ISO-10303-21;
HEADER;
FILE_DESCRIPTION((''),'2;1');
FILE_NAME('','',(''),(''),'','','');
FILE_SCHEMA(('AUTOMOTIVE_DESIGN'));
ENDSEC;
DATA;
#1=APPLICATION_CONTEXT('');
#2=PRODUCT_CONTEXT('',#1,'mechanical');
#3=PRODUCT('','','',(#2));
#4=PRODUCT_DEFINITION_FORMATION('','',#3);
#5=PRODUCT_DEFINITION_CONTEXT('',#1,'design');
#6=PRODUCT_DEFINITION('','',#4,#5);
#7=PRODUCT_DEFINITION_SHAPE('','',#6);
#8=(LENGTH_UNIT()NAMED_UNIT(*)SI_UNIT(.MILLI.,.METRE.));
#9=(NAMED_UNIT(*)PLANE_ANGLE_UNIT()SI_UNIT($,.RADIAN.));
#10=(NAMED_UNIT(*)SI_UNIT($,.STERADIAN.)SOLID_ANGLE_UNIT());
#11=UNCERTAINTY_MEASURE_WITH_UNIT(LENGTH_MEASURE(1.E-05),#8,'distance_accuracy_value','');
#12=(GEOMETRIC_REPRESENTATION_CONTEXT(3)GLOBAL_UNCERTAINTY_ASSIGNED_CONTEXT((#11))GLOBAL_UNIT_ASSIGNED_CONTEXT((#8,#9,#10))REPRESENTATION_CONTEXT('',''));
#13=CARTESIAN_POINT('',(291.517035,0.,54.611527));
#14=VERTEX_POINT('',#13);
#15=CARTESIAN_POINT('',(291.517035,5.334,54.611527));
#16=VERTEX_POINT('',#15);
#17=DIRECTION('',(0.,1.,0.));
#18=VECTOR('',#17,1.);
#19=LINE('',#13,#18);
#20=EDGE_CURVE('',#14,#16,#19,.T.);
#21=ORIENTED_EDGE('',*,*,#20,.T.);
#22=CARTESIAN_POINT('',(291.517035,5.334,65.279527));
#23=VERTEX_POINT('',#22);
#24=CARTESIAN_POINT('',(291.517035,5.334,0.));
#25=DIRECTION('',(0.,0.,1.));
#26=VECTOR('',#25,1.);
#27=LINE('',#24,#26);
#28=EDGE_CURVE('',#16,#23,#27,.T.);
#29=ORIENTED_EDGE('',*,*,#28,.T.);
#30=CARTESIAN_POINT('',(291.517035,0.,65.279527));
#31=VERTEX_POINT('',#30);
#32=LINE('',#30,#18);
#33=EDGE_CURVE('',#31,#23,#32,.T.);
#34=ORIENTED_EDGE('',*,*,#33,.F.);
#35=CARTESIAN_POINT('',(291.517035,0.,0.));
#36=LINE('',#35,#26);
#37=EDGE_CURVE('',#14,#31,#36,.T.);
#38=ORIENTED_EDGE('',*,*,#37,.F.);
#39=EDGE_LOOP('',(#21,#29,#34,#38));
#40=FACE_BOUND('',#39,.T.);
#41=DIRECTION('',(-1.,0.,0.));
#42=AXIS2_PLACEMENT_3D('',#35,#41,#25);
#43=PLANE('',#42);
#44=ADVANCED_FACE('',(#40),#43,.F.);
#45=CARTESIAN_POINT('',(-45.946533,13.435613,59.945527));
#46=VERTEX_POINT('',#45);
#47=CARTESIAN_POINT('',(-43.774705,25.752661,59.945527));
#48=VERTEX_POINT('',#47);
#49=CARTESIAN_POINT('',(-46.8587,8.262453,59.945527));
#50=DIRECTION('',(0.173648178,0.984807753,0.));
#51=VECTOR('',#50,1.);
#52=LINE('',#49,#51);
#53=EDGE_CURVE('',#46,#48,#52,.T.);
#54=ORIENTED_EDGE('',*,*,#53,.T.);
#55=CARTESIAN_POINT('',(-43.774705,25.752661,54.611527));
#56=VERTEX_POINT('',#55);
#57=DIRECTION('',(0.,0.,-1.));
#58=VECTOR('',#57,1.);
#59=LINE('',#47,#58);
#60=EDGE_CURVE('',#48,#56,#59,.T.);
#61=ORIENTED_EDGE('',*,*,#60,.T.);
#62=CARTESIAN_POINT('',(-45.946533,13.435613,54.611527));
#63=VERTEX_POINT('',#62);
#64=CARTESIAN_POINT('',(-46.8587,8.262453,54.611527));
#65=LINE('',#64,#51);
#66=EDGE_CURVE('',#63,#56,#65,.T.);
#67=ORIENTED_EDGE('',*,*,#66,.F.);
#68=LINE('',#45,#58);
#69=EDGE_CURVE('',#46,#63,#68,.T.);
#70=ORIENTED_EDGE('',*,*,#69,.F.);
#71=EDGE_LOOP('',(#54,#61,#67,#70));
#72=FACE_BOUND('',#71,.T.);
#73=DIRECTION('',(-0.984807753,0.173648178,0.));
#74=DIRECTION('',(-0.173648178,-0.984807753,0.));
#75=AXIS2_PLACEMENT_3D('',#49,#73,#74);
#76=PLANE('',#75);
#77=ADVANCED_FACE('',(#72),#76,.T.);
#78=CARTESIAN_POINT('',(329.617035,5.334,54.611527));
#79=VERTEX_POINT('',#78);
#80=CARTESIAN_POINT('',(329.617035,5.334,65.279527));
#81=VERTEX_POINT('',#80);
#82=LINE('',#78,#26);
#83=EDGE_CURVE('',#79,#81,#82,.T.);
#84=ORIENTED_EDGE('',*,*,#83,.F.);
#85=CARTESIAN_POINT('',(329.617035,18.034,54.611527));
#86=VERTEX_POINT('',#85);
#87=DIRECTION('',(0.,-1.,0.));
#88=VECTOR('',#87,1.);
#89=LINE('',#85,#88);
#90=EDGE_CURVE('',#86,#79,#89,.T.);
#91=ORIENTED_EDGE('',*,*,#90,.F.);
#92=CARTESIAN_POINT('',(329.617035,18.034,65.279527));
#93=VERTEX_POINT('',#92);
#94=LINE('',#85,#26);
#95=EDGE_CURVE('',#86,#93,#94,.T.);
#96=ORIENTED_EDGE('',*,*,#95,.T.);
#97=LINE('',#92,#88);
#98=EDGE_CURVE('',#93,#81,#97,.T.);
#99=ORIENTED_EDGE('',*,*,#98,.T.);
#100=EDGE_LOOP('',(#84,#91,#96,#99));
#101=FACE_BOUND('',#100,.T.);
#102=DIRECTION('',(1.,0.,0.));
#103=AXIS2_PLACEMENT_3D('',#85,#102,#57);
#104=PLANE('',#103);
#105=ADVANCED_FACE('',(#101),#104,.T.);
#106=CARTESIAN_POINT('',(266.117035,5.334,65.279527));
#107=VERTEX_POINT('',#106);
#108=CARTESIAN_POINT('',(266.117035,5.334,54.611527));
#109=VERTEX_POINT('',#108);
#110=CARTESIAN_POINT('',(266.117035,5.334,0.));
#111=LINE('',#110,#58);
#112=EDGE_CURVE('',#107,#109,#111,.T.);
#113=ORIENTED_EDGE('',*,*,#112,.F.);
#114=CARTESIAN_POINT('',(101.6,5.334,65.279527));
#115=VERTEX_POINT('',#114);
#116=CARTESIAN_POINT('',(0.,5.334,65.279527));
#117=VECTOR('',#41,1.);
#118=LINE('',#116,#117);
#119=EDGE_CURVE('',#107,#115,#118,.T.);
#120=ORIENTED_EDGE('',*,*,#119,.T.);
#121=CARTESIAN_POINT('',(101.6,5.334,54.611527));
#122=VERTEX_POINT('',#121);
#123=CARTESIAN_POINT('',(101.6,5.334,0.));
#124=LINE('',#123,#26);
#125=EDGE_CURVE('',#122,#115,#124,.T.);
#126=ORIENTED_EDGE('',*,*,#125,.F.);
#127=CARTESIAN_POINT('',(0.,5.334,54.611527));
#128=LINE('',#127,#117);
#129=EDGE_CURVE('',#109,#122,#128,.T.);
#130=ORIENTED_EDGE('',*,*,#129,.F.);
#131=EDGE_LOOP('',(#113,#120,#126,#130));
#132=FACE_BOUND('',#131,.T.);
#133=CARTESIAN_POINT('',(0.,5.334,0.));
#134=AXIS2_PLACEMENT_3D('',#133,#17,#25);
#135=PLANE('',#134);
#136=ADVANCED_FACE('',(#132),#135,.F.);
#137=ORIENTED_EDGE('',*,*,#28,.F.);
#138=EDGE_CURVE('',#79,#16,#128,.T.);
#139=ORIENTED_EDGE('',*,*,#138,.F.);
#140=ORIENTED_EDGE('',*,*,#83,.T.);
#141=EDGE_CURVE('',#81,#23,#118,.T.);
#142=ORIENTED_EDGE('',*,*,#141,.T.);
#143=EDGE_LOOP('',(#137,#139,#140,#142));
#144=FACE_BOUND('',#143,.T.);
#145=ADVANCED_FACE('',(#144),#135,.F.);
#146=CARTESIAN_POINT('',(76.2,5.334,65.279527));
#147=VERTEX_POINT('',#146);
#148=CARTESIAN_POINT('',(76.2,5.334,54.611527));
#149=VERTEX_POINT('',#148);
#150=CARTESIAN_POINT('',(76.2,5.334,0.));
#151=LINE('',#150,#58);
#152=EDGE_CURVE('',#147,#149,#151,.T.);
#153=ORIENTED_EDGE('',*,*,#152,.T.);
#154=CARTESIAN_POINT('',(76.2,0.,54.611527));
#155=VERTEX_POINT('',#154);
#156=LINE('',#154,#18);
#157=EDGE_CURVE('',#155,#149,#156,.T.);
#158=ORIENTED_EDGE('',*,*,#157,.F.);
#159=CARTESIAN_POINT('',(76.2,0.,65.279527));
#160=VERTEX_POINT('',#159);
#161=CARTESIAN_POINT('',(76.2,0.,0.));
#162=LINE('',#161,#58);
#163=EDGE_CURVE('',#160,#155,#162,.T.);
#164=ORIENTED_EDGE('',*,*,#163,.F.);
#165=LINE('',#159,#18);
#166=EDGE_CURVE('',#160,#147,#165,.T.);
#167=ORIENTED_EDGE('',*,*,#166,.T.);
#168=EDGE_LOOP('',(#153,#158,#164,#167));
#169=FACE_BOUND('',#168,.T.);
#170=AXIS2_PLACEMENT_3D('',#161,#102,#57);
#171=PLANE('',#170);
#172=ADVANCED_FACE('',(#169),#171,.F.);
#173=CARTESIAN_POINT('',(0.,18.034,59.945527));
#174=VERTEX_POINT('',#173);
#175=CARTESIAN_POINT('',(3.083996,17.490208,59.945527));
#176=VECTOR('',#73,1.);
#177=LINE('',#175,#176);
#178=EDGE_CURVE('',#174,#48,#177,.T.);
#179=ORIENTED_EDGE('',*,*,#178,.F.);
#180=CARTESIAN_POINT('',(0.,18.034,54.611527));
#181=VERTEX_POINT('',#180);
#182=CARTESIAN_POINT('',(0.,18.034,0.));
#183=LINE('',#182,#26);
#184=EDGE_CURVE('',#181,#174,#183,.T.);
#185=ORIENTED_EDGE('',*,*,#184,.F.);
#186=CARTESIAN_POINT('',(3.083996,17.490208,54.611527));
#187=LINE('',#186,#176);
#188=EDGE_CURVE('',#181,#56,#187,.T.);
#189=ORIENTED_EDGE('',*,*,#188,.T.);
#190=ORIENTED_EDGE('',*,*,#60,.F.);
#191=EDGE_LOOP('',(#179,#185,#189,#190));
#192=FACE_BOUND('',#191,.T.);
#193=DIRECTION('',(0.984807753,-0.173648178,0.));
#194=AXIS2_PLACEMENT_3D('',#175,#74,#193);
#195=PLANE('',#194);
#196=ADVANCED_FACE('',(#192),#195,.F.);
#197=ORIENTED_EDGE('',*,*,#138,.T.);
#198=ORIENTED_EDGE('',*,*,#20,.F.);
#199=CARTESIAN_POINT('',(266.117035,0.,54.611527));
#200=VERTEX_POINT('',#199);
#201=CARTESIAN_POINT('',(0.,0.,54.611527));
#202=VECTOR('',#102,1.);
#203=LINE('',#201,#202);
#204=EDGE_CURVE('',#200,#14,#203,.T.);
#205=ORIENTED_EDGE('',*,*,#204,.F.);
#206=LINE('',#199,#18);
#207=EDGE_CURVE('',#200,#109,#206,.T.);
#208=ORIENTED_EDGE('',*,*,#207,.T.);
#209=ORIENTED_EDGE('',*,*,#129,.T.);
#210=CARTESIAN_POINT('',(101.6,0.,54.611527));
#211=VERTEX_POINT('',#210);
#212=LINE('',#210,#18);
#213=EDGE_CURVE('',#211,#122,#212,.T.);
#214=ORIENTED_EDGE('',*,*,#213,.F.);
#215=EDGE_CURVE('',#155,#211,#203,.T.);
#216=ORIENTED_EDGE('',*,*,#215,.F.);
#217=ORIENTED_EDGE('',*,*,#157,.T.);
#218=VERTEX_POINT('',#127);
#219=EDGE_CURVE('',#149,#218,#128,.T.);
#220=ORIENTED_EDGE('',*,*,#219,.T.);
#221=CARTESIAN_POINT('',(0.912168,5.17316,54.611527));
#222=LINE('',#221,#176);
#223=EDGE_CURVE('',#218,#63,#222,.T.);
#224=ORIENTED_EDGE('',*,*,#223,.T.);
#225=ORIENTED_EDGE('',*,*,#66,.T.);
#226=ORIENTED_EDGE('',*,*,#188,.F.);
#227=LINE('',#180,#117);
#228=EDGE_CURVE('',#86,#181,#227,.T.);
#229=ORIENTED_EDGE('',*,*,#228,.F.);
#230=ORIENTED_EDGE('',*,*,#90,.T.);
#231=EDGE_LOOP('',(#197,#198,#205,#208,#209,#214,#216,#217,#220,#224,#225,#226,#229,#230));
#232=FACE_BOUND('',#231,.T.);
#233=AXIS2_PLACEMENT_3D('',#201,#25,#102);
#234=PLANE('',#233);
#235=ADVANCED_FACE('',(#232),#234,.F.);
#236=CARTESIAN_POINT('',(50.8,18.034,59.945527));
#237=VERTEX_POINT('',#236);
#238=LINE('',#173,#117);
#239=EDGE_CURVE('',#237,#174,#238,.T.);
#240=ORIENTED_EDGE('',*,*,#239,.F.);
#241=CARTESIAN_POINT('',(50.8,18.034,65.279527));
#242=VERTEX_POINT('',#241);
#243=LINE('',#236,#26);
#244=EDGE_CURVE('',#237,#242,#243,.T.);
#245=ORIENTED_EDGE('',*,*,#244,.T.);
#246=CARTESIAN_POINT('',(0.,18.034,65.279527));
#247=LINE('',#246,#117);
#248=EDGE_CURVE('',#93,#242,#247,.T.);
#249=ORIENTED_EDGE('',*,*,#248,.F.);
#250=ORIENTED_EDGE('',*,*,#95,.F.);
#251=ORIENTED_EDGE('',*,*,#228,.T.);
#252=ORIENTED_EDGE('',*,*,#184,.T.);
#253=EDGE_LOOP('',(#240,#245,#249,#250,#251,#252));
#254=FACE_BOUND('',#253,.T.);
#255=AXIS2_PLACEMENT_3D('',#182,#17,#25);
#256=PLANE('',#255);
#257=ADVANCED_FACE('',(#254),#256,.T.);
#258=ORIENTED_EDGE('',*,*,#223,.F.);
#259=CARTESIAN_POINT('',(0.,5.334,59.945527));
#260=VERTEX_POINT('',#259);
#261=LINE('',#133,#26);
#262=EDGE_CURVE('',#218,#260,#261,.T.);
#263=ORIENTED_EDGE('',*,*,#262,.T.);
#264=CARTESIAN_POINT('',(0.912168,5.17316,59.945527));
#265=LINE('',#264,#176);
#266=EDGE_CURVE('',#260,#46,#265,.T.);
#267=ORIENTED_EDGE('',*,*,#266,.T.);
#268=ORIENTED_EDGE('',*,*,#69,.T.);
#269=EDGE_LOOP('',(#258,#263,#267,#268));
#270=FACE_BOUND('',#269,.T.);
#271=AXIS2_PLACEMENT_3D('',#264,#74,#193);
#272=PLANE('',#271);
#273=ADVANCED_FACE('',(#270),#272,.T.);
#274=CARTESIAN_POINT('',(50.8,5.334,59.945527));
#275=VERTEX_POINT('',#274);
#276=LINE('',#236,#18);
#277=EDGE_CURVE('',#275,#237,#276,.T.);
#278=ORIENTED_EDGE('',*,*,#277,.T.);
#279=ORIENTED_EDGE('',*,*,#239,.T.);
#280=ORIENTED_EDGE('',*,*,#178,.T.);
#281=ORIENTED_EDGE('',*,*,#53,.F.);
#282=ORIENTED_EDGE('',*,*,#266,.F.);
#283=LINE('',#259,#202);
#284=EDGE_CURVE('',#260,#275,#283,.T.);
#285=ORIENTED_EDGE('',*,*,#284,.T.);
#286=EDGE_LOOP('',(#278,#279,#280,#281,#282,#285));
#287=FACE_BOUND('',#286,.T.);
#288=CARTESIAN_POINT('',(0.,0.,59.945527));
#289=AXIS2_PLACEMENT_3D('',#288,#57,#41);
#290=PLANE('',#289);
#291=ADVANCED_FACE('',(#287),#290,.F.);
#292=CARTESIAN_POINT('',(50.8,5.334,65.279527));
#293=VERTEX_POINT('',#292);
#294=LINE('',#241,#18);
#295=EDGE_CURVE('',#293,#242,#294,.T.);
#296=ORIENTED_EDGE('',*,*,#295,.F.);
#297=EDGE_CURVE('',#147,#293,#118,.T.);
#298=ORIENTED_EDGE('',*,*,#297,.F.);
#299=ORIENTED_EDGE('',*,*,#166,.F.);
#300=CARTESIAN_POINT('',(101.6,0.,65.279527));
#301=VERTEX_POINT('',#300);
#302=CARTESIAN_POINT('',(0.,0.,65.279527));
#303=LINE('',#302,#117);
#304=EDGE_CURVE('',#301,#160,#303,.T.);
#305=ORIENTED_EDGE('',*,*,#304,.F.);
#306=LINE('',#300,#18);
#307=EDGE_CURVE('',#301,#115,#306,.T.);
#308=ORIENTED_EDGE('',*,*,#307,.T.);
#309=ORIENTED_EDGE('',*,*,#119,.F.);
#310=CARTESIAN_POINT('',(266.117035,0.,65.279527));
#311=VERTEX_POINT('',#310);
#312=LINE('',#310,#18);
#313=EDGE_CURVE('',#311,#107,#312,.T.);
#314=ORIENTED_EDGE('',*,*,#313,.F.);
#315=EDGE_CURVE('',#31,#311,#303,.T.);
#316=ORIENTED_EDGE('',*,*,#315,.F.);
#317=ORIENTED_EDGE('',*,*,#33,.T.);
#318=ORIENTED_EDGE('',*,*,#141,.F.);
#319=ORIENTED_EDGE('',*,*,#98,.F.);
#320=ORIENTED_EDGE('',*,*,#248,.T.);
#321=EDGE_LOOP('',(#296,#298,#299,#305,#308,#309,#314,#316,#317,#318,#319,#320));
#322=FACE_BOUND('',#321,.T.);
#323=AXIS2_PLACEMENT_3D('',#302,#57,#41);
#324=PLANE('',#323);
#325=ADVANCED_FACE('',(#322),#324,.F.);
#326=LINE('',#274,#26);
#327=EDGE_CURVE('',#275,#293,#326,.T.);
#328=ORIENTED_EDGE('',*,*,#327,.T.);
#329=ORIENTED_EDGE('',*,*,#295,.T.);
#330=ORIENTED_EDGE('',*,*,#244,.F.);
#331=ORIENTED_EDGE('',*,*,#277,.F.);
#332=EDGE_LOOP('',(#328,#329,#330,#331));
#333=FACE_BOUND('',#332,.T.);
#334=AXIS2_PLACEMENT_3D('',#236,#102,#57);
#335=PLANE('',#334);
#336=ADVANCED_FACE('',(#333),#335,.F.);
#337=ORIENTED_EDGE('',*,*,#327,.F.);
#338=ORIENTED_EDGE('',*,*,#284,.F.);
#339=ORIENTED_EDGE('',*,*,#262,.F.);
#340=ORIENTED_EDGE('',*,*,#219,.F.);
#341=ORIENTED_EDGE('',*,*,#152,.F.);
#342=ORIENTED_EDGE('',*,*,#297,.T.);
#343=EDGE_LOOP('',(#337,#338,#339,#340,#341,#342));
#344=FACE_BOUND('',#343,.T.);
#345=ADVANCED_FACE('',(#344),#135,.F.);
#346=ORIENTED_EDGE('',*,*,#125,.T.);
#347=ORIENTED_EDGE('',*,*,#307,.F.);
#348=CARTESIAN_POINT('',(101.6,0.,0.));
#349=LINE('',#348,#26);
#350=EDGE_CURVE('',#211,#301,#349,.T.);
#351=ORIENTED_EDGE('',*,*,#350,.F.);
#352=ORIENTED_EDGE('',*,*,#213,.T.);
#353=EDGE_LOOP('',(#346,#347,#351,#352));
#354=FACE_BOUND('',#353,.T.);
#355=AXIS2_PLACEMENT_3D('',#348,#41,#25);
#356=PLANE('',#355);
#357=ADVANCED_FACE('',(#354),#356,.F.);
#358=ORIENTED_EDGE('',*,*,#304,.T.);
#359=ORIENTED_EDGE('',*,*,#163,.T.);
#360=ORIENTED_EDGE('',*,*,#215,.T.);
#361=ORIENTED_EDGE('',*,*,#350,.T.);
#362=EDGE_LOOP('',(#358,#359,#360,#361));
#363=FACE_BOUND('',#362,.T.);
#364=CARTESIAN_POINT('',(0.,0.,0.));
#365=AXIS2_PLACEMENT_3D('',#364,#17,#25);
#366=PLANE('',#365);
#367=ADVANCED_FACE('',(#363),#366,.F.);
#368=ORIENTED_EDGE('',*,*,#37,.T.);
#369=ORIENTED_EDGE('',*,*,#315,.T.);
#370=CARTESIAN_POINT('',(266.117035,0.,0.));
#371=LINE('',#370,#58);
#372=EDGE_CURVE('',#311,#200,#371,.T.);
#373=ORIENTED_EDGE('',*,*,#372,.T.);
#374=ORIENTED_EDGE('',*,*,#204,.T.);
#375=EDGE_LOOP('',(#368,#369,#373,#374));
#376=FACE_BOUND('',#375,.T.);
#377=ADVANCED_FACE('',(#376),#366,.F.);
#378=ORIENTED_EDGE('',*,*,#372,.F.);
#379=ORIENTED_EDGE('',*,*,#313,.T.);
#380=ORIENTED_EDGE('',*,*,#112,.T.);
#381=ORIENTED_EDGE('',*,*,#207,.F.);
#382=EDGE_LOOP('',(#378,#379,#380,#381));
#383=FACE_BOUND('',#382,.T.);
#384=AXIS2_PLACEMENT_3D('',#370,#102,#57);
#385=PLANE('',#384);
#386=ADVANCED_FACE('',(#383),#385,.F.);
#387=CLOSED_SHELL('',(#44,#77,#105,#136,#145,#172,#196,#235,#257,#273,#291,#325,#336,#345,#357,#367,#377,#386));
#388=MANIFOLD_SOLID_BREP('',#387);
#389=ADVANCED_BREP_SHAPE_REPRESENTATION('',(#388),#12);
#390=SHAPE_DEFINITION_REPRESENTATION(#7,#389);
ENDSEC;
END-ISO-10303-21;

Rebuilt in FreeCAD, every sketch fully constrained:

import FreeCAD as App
import Part
import Sketcher
Q = App.Units.Quantity

doc = App.newDocument("Part")
body = doc.addObject("PartDesign::Body", "Body")

# Sketch on XZ plane
sketch1 = doc.addObject("Sketcher::SketchObject", "Sketch")
body.addObject(sketch1)
sketch1.AttachmentSupport = (doc.XZ_Plane, [""])
sketch1.MapMode = "FlatFace"
sketch1.AttachmentOffset = App.Placement(App.Vector(0, 0, -0.21 * 25.4), App.Rotation())
sketch1.addGeometry(Part.LineSegment(App.Vector(76, 55, 0), App.Vector(76, 65, 0)), False)
sketch1.addGeometry(Part.LineSegment(App.Vector(76, 65, 0), App.Vector(102, 65, 0)), False)
sketch1.addGeometry(Part.LineSegment(App.Vector(102, 65, 0), App.Vector(102, 55, 0)), False)
sketch1.addGeometry(Part.LineSegment(App.Vector(102, 55, 0), App.Vector(76, 55, 0)), False)
sketch1.addConstraint(Sketcher.Constraint("Coincident", 0, 2, 1, 1))
sketch1.addConstraint(Sketcher.Constraint("Coincident", 1, 2, 2, 1))
sketch1.addConstraint(Sketcher.Constraint("Coincident", 2, 2, 3, 1))
sketch1.addConstraint(Sketcher.Constraint("Coincident", 3, 2, 0, 1))
sketch1.addConstraint(Sketcher.Constraint("Vertical", 0))
sketch1.addConstraint(Sketcher.Constraint("Horizontal", 1))
sketch1.addConstraint(Sketcher.Constraint("Vertical", 2))
sketch1.addConstraint(Sketcher.Constraint("Horizontal", 3))
sketch1.addConstraint(Sketcher.Constraint("DistanceX", 1, 1, 1, 2, Q("1 in")))
sketch1.addConstraint(Sketcher.Constraint("DistanceX", -1, 1, 0, 2, Q("3 in")))
sketch1.addConstraint(Sketcher.Constraint("DistanceY", 0, 1, 0, 2, Q("0.42 in")))
sketch1.addConstraint(Sketcher.Constraint("DistanceY", -1, 1, 0, 2, Q("65.279527 mm")))
pad1 = doc.addObject("PartDesign::Pad", "Pad")
body.addObject(pad1)
pad1.Profile = sketch1
pad1.Length = Q("0.21 in")
body2 = doc.addObject("PartDesign::Body", "Body001")

# Sketch on XZ plane
sketch2 = doc.addObject("Sketcher::SketchObject", "Sketch001")
body2.addObject(sketch2)
sketch2.AttachmentSupport = (doc.getObject("XZ_Plane001"), [""])
sketch2.MapMode = "FlatFace"
sketch2.AttachmentOffset = App.Placement(App.Vector(0, 0, -0.21 * 25.4), App.Rotation())
sketch2.addGeometry(Part.LineSegment(App.Vector(266, 55, 0), App.Vector(266, 65, 0)), False)
sketch2.addGeometry(Part.LineSegment(App.Vector(266, 65, 0), App.Vector(292, 65, 0)), False)
sketch2.addGeometry(Part.LineSegment(App.Vector(292, 65, 0), App.Vector(292, 55, 0)), False)
sketch2.addGeometry(Part.LineSegment(App.Vector(292, 55, 0), App.Vector(266, 55, 0)), False)
sketch2.addConstraint(Sketcher.Constraint("Coincident", 0, 2, 1, 1))
sketch2.addConstraint(Sketcher.Constraint("Coincident", 1, 2, 2, 1))
sketch2.addConstraint(Sketcher.Constraint("Coincident", 2, 2, 3, 1))
sketch2.addConstraint(Sketcher.Constraint("Coincident", 3, 2, 0, 1))
sketch2.addConstraint(Sketcher.Constraint("Vertical", 0))
sketch2.addConstraint(Sketcher.Constraint("Horizontal", 1))
sketch2.addConstraint(Sketcher.Constraint("Vertical", 2))
sketch2.addConstraint(Sketcher.Constraint("Horizontal", 3))
sketch2.addConstraint(Sketcher.Constraint("DistanceX", 1, 1, 1, 2, Q("1 in")))
sketch2.addConstraint(Sketcher.Constraint("DistanceY", 0, 1, 0, 2, Q("0.42 in")))
sketch2.addConstraint(Sketcher.Constraint("DistanceX", -1, 1, 0, 2, Q("266.117035 mm")))
sketch2.addConstraint(Sketcher.Constraint("DistanceY", -1, 1, 0, 2, Q("65.279527 mm")))
pad2 = doc.addObject("PartDesign::Pad", "Pad001")
body2.addObject(pad2)
pad2.Profile = sketch2
pad2.Length = Q("0.21 in")
body.AllowCompound = True
doc.recompute()

boolean = doc.addObject("PartDesign::Boolean", "Boolean")
body.addObject(boolean)
boolean.Type = "Fuse"
boolean.addObjects([body2])

# Sketch on XZ plane
sketch3 = doc.addObject("Sketcher::SketchObject", "Sketch002")
body.addObject(sketch3)
sketch3.AttachmentSupport = (doc.XZ_Plane, [""])
sketch3.MapMode = "FlatFace"
sketch3.AttachmentOffset = App.Placement(App.Vector(0, 0, -0.21 * 25.4), App.Rotation())
sketch3.addGeometry(Part.LineSegment(App.Vector(0, 55, 0), App.Vector(0, 65, 0)), False)
sketch3.addGeometry(Part.LineSegment(App.Vector(0, 65, 0), App.Vector(330, 65, 0)), False)
sketch3.addGeometry(Part.LineSegment(App.Vector(330, 65, 0), App.Vector(330, 55, 0)), False)
sketch3.addGeometry(Part.LineSegment(App.Vector(330, 55, 0), App.Vector(0, 55, 0)), False)
sketch3.addConstraint(Sketcher.Constraint("Coincident", 0, 2, 1, 1))
sketch3.addConstraint(Sketcher.Constraint("Coincident", 1, 2, 2, 1))
sketch3.addConstraint(Sketcher.Constraint("Coincident", 2, 2, 3, 1))
sketch3.addConstraint(Sketcher.Constraint("Coincident", 3, 2, 0, 1))
sketch3.addConstraint(Sketcher.Constraint("Vertical", 0))
sketch3.addConstraint(Sketcher.Constraint("Horizontal", 1))
sketch3.addConstraint(Sketcher.Constraint("Vertical", 2))
sketch3.addConstraint(Sketcher.Constraint("Horizontal", 3))
sketch3.addConstraint(Sketcher.Constraint("PointOnObject", 0, 2, -2))
sketch3.addConstraint(Sketcher.Constraint("DistanceY", 0, 1, 0, 2, Q("0.42 in")))
sketch3.addConstraint(Sketcher.Constraint("DistanceX", 1, 1, 1, 2, Q("329.617035 mm")))
sketch3.addConstraint(Sketcher.Constraint("DistanceY", -1, 1, 0, 2, Q("65.279527 mm")))
pad3 = doc.addObject("PartDesign::Pad", "Pad002")
body.addObject(pad3)
pad3.Profile = sketch3
pad3.Length = Q("0.5 in")
pad3.Reversed = True

# Sketch on XY plane
sketch4 = doc.addObject("Sketcher::SketchObject", "Sketch003")
body.addObject(sketch4)
sketch4.AttachmentSupport = (doc.XY_Plane, [""])
sketch4.MapMode = "FlatFace"
sketch4.AttachmentOffset = App.Placement(App.Vector(0, 0, 54.611527), App.Rotation())
sketch4.addGeometry(Part.LineSegment(App.Vector(0, 5, 0), App.Vector(-46, 13, 0)), False)
sketch4.addGeometry(Part.LineSegment(App.Vector(-46, 13, 0), App.Vector(-44, 26, 0)), False)
sketch4.addGeometry(Part.LineSegment(App.Vector(-44, 26, 0), App.Vector(0, 18, 0)), False)
sketch4.addGeometry(Part.LineSegment(App.Vector(0, 18, 0), App.Vector(0, 5, 0)), False)
sketch4.addConstraint(Sketcher.Constraint("Coincident", 0, 2, 1, 1))
sketch4.addConstraint(Sketcher.Constraint("Coincident", 1, 2, 2, 1))
sketch4.addConstraint(Sketcher.Constraint("Coincident", 2, 2, 3, 1))
sketch4.addConstraint(Sketcher.Constraint("Coincident", 3, 2, 0, 1))
sketch4.addConstraint(Sketcher.Constraint("Vertical", 3))
sketch4.addConstraint(Sketcher.Constraint("PointOnObject", 2, 2, -2))
sketch4.addConstraint(Sketcher.Constraint("Perpendicular", 0, 1))
sketch4.addConstraint(Sketcher.Constraint("Perpendicular", 1, 2))
sketch4.addConstraint(Sketcher.Constraint("DistanceY", 3, 2, 3, 1, Q("0.5 in")))
sketch4.addConstraint(Sketcher.Constraint("Angle", 0, Q("170 deg")))
sketch4.addConstraint(Sketcher.Constraint("Distance", 2, Q("1.75 in")))
sketch4.addConstraint(Sketcher.Constraint("DistanceY", -1, 1, 2, 2, Q("0.71 in")))
pad4 = doc.addObject("PartDesign::Pad", "Pad003")
body.addObject(pad4)
pad4.Profile = sketch4
pad4.Length = Q("0.21 in")

# Sketch on XY plane
sketch5 = doc.addObject("Sketcher::SketchObject", "Sketch004")
body.addObject(sketch5)
sketch5.AttachmentSupport = (doc.XY_Plane, [""])
sketch5.MapMode = "FlatFace"
sketch5.AttachmentOffset = App.Placement(App.Vector(0, 0, 65.279527), App.Rotation())
sketch5.addGeometry(Part.LineSegment(App.Vector(0, 18, 0), App.Vector(0, 5, 0)), False)
sketch5.addGeometry(Part.LineSegment(App.Vector(0, 5, 0), App.Vector(51, 5, 0)), False)
sketch5.addGeometry(Part.LineSegment(App.Vector(51, 5, 0), App.Vector(51, 18, 0)), False)
sketch5.addGeometry(Part.LineSegment(App.Vector(51, 18, 0), App.Vector(0, 18, 0)), False)
sketch5.addConstraint(Sketcher.Constraint("Coincident", 0, 2, 1, 1))
sketch5.addConstraint(Sketcher.Constraint("Coincident", 1, 2, 2, 1))
sketch5.addConstraint(Sketcher.Constraint("Coincident", 2, 2, 3, 1))
sketch5.addConstraint(Sketcher.Constraint("Coincident", 3, 2, 0, 1))
sketch5.addConstraint(Sketcher.Constraint("Vertical", 0))
sketch5.addConstraint(Sketcher.Constraint("Horizontal", 1))
sketch5.addConstraint(Sketcher.Constraint("Vertical", 2))
sketch5.addConstraint(Sketcher.Constraint("Horizontal", 3))
sketch5.addConstraint(Sketcher.Constraint("PointOnObject", 0, 2, -2))
sketch5.addConstraint(Sketcher.Constraint("DistanceX", 1, 1, 1, 2, Q("2 in")))
sketch5.addConstraint(Sketcher.Constraint("DistanceY", 0, 2, 0, 1, Q("0.5 in")))
sketch5.addConstraint(Sketcher.Constraint("DistanceY", -1, 1, 0, 2, Q("0.21 in")))
pocket1 = doc.addObject("PartDesign::Pocket", "Pocket")
body.addObject(pocket1)
pocket1.Profile = sketch5
pocket1.Length = Q("0.21 in")

doc.recompute()
